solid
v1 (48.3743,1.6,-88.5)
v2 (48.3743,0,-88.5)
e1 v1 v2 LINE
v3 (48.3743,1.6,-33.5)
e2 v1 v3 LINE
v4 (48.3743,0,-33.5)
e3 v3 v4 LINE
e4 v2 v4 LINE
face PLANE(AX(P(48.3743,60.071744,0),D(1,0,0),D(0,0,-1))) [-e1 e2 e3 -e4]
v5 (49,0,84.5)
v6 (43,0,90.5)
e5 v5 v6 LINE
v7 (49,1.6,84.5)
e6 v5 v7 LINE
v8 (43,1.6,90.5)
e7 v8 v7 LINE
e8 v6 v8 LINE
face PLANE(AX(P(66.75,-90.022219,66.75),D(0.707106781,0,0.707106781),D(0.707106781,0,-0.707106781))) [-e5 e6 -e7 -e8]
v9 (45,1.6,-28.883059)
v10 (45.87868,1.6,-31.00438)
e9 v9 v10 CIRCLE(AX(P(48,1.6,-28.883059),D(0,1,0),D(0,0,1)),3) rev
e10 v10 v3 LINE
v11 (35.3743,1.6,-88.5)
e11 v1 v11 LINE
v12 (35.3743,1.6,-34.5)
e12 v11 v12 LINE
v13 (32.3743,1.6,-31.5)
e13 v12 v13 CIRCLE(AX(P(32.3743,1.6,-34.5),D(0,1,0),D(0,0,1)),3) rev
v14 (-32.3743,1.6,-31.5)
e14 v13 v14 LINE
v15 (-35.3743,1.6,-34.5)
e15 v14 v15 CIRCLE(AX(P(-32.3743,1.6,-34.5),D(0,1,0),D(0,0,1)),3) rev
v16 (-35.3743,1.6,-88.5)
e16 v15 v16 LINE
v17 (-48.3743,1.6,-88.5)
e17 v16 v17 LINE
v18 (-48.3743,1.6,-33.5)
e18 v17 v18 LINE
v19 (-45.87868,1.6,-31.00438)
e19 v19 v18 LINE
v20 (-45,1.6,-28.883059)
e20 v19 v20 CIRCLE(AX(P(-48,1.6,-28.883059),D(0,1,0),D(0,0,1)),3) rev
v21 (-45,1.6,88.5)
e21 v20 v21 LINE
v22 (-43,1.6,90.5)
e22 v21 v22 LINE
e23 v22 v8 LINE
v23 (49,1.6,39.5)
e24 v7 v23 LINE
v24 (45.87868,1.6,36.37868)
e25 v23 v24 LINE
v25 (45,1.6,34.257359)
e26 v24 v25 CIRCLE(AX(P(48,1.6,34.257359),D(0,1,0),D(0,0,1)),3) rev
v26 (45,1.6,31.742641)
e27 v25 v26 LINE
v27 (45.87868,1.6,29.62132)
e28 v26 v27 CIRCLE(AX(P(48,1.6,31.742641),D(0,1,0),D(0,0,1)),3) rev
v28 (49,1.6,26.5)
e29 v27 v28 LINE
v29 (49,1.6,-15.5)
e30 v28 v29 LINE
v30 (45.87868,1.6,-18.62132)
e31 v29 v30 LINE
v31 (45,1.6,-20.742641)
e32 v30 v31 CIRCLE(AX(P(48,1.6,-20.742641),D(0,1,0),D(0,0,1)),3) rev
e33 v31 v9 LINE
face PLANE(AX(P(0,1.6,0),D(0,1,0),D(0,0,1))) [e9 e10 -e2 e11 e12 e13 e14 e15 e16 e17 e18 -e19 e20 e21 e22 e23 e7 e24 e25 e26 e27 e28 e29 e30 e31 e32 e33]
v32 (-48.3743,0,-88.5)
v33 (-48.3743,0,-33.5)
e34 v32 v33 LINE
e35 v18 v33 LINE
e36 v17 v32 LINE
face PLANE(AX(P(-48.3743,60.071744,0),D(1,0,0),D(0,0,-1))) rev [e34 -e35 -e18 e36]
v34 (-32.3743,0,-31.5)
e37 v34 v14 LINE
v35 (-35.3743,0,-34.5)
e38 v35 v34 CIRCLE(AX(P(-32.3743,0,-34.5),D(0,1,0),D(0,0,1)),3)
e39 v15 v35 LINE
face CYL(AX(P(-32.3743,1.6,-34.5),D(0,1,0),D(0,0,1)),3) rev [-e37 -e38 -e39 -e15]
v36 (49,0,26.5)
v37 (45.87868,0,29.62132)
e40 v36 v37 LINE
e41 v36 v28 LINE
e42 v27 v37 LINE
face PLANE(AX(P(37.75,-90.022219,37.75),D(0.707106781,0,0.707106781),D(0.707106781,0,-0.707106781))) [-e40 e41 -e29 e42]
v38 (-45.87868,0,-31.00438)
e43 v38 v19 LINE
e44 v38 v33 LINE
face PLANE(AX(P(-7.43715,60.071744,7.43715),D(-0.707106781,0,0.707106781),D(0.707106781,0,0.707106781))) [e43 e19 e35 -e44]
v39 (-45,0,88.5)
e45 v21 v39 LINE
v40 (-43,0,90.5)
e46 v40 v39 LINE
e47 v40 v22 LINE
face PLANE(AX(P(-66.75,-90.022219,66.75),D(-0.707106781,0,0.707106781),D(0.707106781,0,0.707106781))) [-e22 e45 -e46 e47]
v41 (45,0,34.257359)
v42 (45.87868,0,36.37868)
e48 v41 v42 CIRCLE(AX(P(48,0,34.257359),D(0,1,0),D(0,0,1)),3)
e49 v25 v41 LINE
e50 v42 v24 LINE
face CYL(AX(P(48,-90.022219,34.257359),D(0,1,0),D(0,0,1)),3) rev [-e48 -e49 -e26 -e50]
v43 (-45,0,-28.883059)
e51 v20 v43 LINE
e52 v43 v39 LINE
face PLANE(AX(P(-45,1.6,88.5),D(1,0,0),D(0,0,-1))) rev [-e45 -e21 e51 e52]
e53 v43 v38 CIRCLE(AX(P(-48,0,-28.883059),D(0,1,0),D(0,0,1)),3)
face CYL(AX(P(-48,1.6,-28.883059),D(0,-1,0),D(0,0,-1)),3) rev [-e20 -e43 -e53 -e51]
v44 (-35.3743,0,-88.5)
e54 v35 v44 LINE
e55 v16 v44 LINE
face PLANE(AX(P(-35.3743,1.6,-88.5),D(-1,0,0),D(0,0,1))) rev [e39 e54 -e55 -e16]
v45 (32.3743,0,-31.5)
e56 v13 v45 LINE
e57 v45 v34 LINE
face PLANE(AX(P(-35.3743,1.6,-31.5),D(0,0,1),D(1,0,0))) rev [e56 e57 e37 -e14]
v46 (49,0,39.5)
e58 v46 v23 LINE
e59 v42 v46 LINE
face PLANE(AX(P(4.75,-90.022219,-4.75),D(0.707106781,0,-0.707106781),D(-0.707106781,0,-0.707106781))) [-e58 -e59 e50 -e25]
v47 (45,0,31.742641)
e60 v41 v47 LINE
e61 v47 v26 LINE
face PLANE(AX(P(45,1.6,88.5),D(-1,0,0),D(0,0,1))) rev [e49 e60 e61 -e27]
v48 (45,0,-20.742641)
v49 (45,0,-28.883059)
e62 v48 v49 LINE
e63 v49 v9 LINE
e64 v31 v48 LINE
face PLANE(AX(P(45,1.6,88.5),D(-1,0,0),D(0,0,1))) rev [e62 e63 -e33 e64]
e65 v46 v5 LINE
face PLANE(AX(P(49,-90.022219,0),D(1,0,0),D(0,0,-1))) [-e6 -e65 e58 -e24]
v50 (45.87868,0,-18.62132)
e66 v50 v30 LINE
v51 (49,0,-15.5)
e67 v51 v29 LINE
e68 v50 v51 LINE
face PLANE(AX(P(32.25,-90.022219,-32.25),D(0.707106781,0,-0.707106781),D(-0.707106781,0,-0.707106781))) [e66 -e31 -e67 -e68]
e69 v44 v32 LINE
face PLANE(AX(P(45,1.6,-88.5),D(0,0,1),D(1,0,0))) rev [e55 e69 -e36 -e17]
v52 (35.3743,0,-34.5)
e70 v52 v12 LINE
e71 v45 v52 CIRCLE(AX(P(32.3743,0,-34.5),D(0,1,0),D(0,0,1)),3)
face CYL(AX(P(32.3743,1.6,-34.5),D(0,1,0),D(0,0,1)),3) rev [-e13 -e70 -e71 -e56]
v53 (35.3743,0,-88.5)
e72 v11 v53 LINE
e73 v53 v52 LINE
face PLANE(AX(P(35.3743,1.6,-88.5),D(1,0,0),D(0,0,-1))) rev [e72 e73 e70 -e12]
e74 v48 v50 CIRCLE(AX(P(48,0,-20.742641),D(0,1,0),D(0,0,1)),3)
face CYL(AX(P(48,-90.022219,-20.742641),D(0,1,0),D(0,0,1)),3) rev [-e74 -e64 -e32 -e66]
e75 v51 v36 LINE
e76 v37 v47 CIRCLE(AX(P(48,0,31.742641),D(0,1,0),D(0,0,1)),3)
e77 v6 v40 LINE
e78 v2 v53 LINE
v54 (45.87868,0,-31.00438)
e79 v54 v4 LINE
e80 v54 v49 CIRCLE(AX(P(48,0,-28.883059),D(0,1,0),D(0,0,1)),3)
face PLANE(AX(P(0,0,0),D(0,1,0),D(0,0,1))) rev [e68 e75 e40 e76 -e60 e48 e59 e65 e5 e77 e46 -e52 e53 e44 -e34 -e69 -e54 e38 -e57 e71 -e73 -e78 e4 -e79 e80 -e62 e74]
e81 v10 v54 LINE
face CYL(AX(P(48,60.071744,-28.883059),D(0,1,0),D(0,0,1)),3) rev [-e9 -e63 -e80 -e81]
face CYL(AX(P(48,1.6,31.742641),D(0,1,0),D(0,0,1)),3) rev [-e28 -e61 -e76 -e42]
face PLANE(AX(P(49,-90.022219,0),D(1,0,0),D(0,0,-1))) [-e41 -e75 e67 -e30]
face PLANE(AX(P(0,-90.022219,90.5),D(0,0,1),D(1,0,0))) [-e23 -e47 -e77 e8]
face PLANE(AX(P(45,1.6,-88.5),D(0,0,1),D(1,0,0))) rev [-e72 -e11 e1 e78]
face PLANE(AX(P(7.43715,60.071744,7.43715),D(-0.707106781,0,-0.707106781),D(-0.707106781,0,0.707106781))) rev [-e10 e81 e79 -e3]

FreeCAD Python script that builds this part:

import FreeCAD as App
import Part
import Sketcher

V = App.Vector


def edges_at(feature, points):
    """Names of the edges that pass closest to the given points."""
    edges = feature.Shape.Edges
    near = lambda p: min(range(len(edges)), key=lambda i: edges[i].distToShape(Part.Vertex(*p))[0])
    return sorted({f"Edge{near(p) + 1}" for p in points})

doc = App.newDocument("Part")
body = doc.addObject("PartDesign::Body", "Body")

# Sketch on XZ plane
sketch1 = doc.addObject("Sketcher::SketchObject", "Sketch")
body.addObject(sketch1)
sketch1.AttachmentSupport = (doc.XZ_Plane, [""])
sketch1.MapMode = "FlatFace"
sketch1.addGeometry([
    Part.LineSegment(V(-45, -88, 0), V(-45, 88, 0)),
    Part.LineSegment(V(-45, 88, 0), V(45, 88, 0)),
    Part.LineSegment(V(45, 88, 0), V(45, -88, 0)),
    Part.LineSegment(V(45, -88, 0), V(-45, -88, 0)),
], False)
sketch1.addConstraint([
    Sketcher.Constraint("Coincident", 0, 2, 1, 1),
    Sketcher.Constraint("Coincident", 1, 2, 2, 1),
    Sketcher.Constraint("Coincident", 2, 2, 3, 1),
    Sketcher.Constraint("Coincident", 3, 2, 0, 1),
    Sketcher.Constraint("Vertical", 0),
    Sketcher.Constraint("Horizontal", 1),
    Sketcher.Constraint("Vertical", 2),
    Sketcher.Constraint("Horizontal", 3),
    Sketcher.Constraint("Symmetric", 0, 2, 2, 2, -1, 1),
    Sketcher.Constraint("DistanceX", 1, 1, 1, 2, 90.0),
    Sketcher.Constraint("DistanceY", 0, 1, 0, 2, 177.0),
])
pad1 = doc.addObject("PartDesign::Pad", "Pad")
body.addObject(pad1)
pad1.Profile = sketch1
pad1.Length = 1.6
pad1.Reversed = True

# Sketch on XZ plane
sketch2 = doc.addObject("Sketcher::SketchObject", "Sketch001")
body.addObject(sketch2)
sketch2.AttachmentSupport = (doc.XZ_Plane, [""])
sketch2.MapMode = "FlatFace"
sketch2.addGeometry([
    Part.LineSegment(V(-45, -88.5, 0), V(-45, -30.1, 0)),  # 0
    Part.LineSegment(V(-45, -30.1, 0), V(-48.4, -33.5, 0)),  # 1
    Part.LineSegment(V(-48.4, -33.5, 0), V(-48.4, -88.5, 0)),  # 2
    Part.LineSegment(V(-48.4, -88.5, 0), V(-45, -88.5, 0)),  # 3
    Part.LineSegment(V(45, -30.1, 0), V(45, -88.5, 0)),  # 4
    Part.LineSegment(V(45, -88.5, 0), V(48.4, -88.5, 0)),  # 5
    Part.LineSegment(V(48.4, -88.5, 0), V(48.4, -33.5, 0)),  # 6
    Part.LineSegment(V(48.4, -33.5, 0), V(45, -30.1, 0)),  # 7
], False)
sketch2.addConstraint([
    Sketcher.Constraint("Coincident", 0, 2, 1, 1),
    Sketcher.Constraint("Coincident", 1, 2, 2, 1),
    Sketcher.Constraint("Coincident", 2, 2, 3, 1),
    Sketcher.Constraint("Coincident", 3, 2, 0, 1),
    Sketcher.Constraint("Coincident", 4, 2, 5, 1),
    Sketcher.Constraint("Coincident", 5, 2, 6, 1),
    Sketcher.Constraint("Coincident", 6, 2, 7, 1),
    Sketcher.Constraint("Coincident", 7, 2, 4, 1),
    Sketcher.Constraint("Vertical", 0),
    Sketcher.Constraint("Vertical", 2),
    Sketcher.Constraint("Horizontal", 3),
    Sketcher.Constraint("Vertical", 4),
    Sketcher.Constraint("Horizontal", 5),
    Sketcher.Constraint("Vertical", 6),
    Sketcher.Constraint("Symmetric", 3, 2, 4, 2, -2),
    Sketcher.Constraint("Symmetric", 1, 2, 6, 2, -2),
    Sketcher.Constraint("Perpendicular", 1, 7),
    Sketcher.Constraint("Horizontal", 0, 2, 7, 2),
    Sketcher.Constraint("DistanceY", 2, 2, 2, 1, 55.0),
    Sketcher.Constraint("DistanceX", 0, 2, -1, 1, 45.0),
    Sketcher.Constraint("DistanceY", 1, 2, -1, 1, 33.5),
    Sketcher.Constraint("DistanceX", 3, 1, 3, 2, 3.3743),
])
pad2 = doc.addObject("PartDesign::Pad", "Pad001")
body.addObject(pad2)
pad2.Profile = sketch2
pad2.Length = 1.6
pad2.Reversed = True

# Sketch on XZ plane
sketch3 = doc.addObject("Sketcher::SketchObject", "Sketch002")
body.addObject(sketch3)
sketch3.AttachmentSupport = (doc.XZ_Plane, [""])
sketch3.MapMode = "FlatFace"
sketch3.AttachmentOffset = App.Placement(V(0, 0, -1.6), App.Rotation())
sketch3.addGeometry([
    Part.LineSegment(V(-43, 90.5, 0), V(43, 90.5, 0)),  # 0
    Part.LineSegment(V(43, 90.5, 0), V(45, 88.5, 0)),  # 1
    Part.LineSegment(V(45, 88.5, 0), V(-45, 88.5, 0)),  # 2
    Part.LineSegment(V(-45, 88.5, 0), V(-43, 90.5, 0)),  # 3
    Part.LineSegment(V(45, 35.5, 0), V(45, 88.5, 0)),  # 4
    Part.LineSegment(V(45, 88.5, 0), V(49, 84.5, 0)),  # 5
    Part.LineSegment(V(49, 84.5, 0), V(49, 39.5, 0)),  # 6
    Part.LineSegment(V(49, 39.5, 0), V(45, 35.5, 0)),  # 7
    Part.LineSegment(V(45, -19.5, 0), V(45, 30.5, 0)),  # 8
    Part.LineSegment(V(45, 30.5, 0), V(49, 26.5, 0)),  # 9
    Part.LineSegment(V(49, 26.5, 0), V(49, -15.5, 0)),  # 10
    Part.LineSegment(V(49, -15.5, 0), V(45, -19.5, 0)),  # 11
], False)
sketch3.addConstraint([
    Sketcher.Constraint("Coincident", 0, 2, 1, 1),
    Sketcher.Constraint("Coincident", 1, 2, 2, 1),
    Sketcher.Constraint("Coincident", 2, 2, 3, 1),
    Sketcher.Constraint("Coincident", 3, 2, 0, 1),
    Sketcher.Constraint("Coincident", 4, 2, 5, 1),
    Sketcher.Constraint("Coincident", 5, 2, 6, 1),
    Sketcher.Constraint("Coincident", 6, 2, 7, 1),
    Sketcher.Constraint("Coincident", 7, 2, 4, 1),
    Sketcher.Constraint("Coincident", 8, 2, 9, 1),
    Sketcher.Constraint("Coincident", 9, 2, 10, 1),
    Sketcher.Constraint("Coincident", 10, 2, 11, 1),
    Sketcher.Constraint("Coincident", 11, 2, 8, 1),
    Sketcher.Constraint("Horizontal", 0),
    Sketcher.Constraint("Horizontal", 2),
    Sketcher.Constraint("Vertical", 4),
    Sketcher.Constraint("Vertical", 6),
    Sketcher.Constraint("Vertical", 8),
    Sketcher.Constraint("Vertical", 10),
    Sketcher.Constraint("Coincident", 4, 2, 1, 2),
    Sketcher.Constraint("Perpendicular", 1, 3),
    Sketcher.Constraint("Perpendicular", 3, 5),
    Sketcher.Constraint("Perpendicular", 5, 7),
    Sketcher.Constraint("Perpendicular", 7, 9),
    Sketcher.Constraint("Perpendicular", 9, 11),
    Sketcher.Constraint("Vertical", 7, 2, 8, 2),
    Sketcher.Constraint("Vertical", 6, 2, 9, 2),
    Sketcher.Constraint("Equal", 1, 3),
    Sketcher.Constraint("DistanceX", 0, 1, 0, 2, 86.0),
    Sketcher.Constraint("DistanceX", 2, 2, 2, 1, 90.0),
    Sketcher.Constraint("DistanceY", 4, 1, 4, 2, 53.0),
    Sketcher.Constraint("DistanceY", 6, 2, 6, 1, 45.0),
    Sketcher.Constraint("DistanceY", 8, 1, 8, 2, 50.0),
    Sketcher.Constraint("DistanceX", -1, 1, 0, 2, 43.0),
    Sketcher.Constraint("DistanceY", 8, 2, 7, 2, 5.0),
    Sketcher.Constraint("DistanceY", -1, 1, 0, 2, 90.5),
])
pad3 = doc.addObject("PartDesign::Pad", "Pad002")
body.addObject(pad3)
pad3.Profile = sketch3
pad3.Length = 1.6

# Sketch on XZ plane
sketch4 = doc.addObject("Sketcher::SketchObject", "Sketch003")
body.addObject(sketch4)
sketch4.AttachmentSupport = (doc.XZ_Plane, [""])
sketch4.MapMode = "FlatFace"
sketch4.addGeometry([
    Part.LineSegment(V(-35, -32, 0), V(-35, -88, 0)),
    Part.LineSegment(V(-35, -88, 0), V(35, -88, 0)),
    Part.LineSegment(V(35, -88, 0), V(35, -32, 0)),
    Part.LineSegment(V(35, -32, 0), V(-35, -32, 0)),
], False)
sketch4.addConstraint([
    Sketcher.Constraint("Coincident", 0, 2, 1, 1),
    Sketcher.Constraint("Coincident", 1, 2, 2, 1),
    Sketcher.Constraint("Coincident", 2, 2, 3, 1),
    Sketcher.Constraint("Coincident", 3, 2, 0, 1),
    Sketcher.Constraint("Vertical", 0),
    Sketcher.Constraint("Horizontal", 1),
    Sketcher.Constraint("Vertical", 2),
    Sketcher.Constraint("Horizontal", 3),
    Sketcher.Constraint("DistanceY", 0, 2, 0, 1, 57.0),
    Sketcher.Constraint("DistanceY", 0, 2, -1, 1, 88.5),
    Sketcher.Constraint("DistanceX", 1, 1, 1, 2, 70.7486),
    Sketcher.Constraint("DistanceX", 0, 2, -1, 1, 35.3743),
])
pocket1 = doc.addObject("PartDesign::Pocket", "Pocket")
body.addObject(pocket1)
pocket1.Profile = sketch4
pocket1.Type = "ThroughAll"
doc.recompute()

fillet = doc.addObject("PartDesign::Fillet", "Fillet")
body.addObject(fillet)
fillet.Base = (pocket1, edges_at(pocket1, [
    (-45, 0.8, -30.126),
    (45, 0.8, -30.126),
    (45, 0.8, 35.5),
    (45, 0.8, 30.5),
    (45, 0.8, -19.5),
    (-35.374, 0.8, -31.5),
    (35.374, 0.8, -31.5),
]))
fillet.Radius = 3

doc.recompute()
